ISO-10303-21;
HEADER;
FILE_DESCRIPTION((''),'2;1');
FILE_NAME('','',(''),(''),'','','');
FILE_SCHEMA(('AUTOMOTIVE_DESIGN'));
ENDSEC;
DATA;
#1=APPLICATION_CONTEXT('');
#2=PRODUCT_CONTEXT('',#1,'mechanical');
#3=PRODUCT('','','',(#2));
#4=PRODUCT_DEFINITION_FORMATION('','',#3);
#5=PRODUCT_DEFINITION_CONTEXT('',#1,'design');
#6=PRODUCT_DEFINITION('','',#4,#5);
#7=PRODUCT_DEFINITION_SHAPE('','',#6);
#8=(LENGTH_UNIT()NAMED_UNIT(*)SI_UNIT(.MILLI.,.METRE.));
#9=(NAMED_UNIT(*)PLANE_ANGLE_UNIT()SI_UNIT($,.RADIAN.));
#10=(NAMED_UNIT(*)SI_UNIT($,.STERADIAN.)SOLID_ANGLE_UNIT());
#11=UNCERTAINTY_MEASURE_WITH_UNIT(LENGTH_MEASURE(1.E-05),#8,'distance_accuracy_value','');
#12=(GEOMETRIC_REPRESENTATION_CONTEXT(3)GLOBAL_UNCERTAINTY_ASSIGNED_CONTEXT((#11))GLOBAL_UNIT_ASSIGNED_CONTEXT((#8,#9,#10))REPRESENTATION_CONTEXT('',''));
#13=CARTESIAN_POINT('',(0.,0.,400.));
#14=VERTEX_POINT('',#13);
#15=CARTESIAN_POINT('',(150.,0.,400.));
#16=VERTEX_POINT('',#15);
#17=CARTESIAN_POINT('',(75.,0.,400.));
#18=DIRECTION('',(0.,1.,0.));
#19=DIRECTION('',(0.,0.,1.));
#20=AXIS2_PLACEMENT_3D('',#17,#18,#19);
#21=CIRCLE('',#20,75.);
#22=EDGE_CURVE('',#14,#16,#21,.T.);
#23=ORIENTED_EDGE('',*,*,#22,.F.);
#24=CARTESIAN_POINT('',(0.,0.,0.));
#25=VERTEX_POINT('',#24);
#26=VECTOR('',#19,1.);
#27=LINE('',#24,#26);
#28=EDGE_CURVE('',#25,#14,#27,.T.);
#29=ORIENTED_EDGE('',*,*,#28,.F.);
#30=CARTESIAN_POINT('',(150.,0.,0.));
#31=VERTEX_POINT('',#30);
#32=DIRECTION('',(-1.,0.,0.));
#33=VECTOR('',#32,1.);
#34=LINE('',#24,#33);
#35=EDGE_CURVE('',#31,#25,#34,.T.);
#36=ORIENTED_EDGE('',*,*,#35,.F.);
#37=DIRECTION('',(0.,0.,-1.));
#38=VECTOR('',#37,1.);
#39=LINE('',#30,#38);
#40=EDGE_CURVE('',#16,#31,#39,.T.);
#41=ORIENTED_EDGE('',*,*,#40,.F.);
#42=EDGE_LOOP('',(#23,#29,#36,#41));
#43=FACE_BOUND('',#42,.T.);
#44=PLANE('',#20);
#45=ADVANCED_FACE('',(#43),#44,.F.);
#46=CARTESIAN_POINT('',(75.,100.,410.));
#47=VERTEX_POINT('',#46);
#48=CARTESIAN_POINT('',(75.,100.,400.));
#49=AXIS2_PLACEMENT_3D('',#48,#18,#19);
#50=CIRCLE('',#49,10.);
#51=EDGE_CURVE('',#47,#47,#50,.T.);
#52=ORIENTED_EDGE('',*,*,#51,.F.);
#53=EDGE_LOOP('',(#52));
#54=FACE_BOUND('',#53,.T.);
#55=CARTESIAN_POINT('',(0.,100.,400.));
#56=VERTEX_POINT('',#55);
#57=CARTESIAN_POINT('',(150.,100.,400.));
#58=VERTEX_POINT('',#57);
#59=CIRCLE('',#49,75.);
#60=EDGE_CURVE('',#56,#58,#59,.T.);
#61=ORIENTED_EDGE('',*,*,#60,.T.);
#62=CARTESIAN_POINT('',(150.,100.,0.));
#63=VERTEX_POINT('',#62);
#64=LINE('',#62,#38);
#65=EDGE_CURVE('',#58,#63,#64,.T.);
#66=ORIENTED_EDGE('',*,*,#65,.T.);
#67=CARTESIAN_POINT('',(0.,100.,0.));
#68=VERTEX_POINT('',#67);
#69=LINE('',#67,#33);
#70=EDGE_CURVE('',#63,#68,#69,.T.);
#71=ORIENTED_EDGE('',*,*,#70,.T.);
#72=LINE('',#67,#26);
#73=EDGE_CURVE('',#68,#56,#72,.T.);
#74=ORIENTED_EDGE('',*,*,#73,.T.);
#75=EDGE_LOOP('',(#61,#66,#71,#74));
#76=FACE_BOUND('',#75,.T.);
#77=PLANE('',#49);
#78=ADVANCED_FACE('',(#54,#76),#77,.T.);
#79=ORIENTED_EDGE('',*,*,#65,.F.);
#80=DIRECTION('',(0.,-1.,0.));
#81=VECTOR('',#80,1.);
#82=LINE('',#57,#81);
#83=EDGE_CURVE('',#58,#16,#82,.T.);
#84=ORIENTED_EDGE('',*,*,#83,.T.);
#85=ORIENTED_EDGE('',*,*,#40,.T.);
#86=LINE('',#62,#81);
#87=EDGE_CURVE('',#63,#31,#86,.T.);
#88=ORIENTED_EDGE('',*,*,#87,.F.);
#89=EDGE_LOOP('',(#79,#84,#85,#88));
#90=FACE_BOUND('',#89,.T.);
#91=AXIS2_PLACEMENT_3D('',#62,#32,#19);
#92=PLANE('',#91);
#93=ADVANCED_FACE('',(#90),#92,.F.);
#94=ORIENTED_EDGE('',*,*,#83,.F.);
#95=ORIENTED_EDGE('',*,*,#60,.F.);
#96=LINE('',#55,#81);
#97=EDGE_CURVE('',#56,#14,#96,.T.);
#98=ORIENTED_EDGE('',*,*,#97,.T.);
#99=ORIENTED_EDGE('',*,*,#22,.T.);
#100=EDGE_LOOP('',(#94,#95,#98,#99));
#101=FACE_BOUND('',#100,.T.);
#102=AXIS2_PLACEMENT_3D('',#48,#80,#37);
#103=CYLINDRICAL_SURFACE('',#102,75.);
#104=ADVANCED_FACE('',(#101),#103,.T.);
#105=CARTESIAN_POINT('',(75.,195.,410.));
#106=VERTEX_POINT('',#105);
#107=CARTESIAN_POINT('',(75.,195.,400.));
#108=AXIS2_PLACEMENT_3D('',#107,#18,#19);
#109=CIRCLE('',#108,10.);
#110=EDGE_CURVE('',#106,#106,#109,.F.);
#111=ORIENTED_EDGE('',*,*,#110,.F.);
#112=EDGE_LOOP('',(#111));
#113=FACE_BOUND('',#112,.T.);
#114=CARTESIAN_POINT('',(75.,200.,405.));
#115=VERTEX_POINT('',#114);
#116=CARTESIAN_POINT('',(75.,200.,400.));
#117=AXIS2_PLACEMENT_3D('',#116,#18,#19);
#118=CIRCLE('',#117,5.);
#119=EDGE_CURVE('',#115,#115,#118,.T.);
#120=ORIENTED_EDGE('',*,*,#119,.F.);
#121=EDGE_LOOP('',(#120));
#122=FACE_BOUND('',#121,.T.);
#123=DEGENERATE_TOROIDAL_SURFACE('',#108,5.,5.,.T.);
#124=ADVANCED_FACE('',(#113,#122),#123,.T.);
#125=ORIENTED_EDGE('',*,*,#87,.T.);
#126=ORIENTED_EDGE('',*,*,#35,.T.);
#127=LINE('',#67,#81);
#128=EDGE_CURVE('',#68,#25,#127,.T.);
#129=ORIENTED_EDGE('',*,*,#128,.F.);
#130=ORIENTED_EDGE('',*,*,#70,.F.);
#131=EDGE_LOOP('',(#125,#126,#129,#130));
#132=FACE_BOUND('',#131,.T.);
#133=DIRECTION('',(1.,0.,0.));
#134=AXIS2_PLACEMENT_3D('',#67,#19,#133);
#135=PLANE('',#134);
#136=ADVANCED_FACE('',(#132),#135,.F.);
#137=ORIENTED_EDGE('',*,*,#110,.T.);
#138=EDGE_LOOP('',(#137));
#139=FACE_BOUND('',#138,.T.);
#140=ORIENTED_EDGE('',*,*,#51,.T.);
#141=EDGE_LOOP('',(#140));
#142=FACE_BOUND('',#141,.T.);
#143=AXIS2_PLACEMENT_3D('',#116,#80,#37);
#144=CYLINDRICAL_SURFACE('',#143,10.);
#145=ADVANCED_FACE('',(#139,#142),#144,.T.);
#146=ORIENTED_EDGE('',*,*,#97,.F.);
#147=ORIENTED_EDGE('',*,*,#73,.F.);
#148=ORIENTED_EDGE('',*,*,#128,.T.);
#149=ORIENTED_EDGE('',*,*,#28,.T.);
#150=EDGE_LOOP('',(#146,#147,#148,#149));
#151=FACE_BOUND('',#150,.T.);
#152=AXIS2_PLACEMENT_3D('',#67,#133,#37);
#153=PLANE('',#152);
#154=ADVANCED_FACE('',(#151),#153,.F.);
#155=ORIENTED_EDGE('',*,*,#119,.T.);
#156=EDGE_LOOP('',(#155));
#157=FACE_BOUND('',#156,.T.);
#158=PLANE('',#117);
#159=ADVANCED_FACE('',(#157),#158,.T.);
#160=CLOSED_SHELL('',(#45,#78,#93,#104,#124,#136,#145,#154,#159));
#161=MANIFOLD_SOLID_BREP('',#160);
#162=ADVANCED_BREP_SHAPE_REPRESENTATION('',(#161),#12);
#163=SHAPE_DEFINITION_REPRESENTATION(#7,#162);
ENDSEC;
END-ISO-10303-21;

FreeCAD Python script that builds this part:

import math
import FreeCAD as App
import Part
import Sketcher
from FreeCAD import Vector
Q = App.Units.Quantity


def edges_at(feature, points):
    """Names of the edges that pass closest to the given points."""
    edges = feature.Shape.Edges
    near = lambda p: min(range(len(edges)), key=lambda i: edges[i].distToShape(Part.Vertex(*p))[0])
    return sorted({f"Edge{near(p) + 1}" for p in points})

doc = App.newDocument("Part")
body = doc.addObject("PartDesign::Body", "Body")

# Sketch on XZ plane
sketch1 = body.newObject("Sketcher::SketchObject", "Sketch")
sketch1.AttachmentSupport = (doc.getObject("XZ_Plane"), [""])
sketch1.MapMode = "FlatFace"
sketch1.addGeometry(Part.LineSegment(Vector(150, 0, 0), Vector(0, 0, 0)), False)
sketch1.addGeometry(Part.LineSegment(Vector(0, 0, 0), Vector(0, 400, 0)), False)
sketch1.addGeometry(Part.ArcOfCircle(Part.Circle(Vector(75, 400, 0), Vector(0, 0, 1), 75), math.radians(0), math.radians(180)), False)
sketch1.addGeometry(Part.LineSegment(Vector(150, 400, 0), Vector(150, 0, 0)), False)
sketch1.addConstraint(Sketcher.Constraint("Coincident", 0, 2, 1, 1))
sketch1.addConstraint(Sketcher.Constraint("Tangent", 1, 2, 2, 2))
sketch1.addConstraint(Sketcher.Constraint("Tangent", 2, 1, 3, 1))
sketch1.addConstraint(Sketcher.Constraint("Coincident", 3, 2, 0, 1))
sketch1.addConstraint(Sketcher.Constraint("Horizontal", 0))
sketch1.addConstraint(Sketcher.Constraint("Vertical", 1))
sketch1.addConstraint(Sketcher.Constraint("Vertical", 3))
sketch1.addConstraint(Sketcher.Constraint("Coincident", 0, 2, -1, 1))
sketch1.addConstraint(Sketcher.Constraint("Radius", 2, Q("75 mm")))
sketch1.addConstraint(Sketcher.Constraint("DistanceY", 1, 1, 1, 2, Q("400 mm")))
pad1 = body.newObject("PartDesign::Pad", "Pad")
pad1.Profile = sketch1
pad1.Length = 100
pad1.Reversed = True

# Sketch on XZ plane
sketch2 = body.newObject("Sketcher::SketchObject", "Sketch001")
sketch2.AttachmentSupport = (doc.getObject("XZ_Plane"), [""])
sketch2.MapMode = "FlatFace"
sketch2.AttachmentOffset = App.Placement(Vector(0, 0, -100), App.Rotation())
sketch2.addGeometry(Part.Circle(Vector(75, 400, 0), Vector(0, 0, 1), 10), False)
sketch2.addConstraint(Sketcher.Constraint("Diameter", 0, Q("20 mm")))
sketch2.addConstraint(Sketcher.Constraint("DistanceX", -1, 1, 0, 3, Q("75 mm")))
sketch2.addConstraint(Sketcher.Constraint("DistanceY", -1, 1, 0, 3, Q("400 mm")))
pad2 = body.newObject("PartDesign::Pad", "Pad001")
pad2.Profile = sketch2
pad2.Length = 100
pad2.Reversed = True
doc.recompute()

fillet = body.newObject("PartDesign::Fillet", "Fillet")
fillet.Base = (pad2, edges_at(pad2, [(65, 200, 400)]))
fillet.Radius = 5

doc.recompute()
